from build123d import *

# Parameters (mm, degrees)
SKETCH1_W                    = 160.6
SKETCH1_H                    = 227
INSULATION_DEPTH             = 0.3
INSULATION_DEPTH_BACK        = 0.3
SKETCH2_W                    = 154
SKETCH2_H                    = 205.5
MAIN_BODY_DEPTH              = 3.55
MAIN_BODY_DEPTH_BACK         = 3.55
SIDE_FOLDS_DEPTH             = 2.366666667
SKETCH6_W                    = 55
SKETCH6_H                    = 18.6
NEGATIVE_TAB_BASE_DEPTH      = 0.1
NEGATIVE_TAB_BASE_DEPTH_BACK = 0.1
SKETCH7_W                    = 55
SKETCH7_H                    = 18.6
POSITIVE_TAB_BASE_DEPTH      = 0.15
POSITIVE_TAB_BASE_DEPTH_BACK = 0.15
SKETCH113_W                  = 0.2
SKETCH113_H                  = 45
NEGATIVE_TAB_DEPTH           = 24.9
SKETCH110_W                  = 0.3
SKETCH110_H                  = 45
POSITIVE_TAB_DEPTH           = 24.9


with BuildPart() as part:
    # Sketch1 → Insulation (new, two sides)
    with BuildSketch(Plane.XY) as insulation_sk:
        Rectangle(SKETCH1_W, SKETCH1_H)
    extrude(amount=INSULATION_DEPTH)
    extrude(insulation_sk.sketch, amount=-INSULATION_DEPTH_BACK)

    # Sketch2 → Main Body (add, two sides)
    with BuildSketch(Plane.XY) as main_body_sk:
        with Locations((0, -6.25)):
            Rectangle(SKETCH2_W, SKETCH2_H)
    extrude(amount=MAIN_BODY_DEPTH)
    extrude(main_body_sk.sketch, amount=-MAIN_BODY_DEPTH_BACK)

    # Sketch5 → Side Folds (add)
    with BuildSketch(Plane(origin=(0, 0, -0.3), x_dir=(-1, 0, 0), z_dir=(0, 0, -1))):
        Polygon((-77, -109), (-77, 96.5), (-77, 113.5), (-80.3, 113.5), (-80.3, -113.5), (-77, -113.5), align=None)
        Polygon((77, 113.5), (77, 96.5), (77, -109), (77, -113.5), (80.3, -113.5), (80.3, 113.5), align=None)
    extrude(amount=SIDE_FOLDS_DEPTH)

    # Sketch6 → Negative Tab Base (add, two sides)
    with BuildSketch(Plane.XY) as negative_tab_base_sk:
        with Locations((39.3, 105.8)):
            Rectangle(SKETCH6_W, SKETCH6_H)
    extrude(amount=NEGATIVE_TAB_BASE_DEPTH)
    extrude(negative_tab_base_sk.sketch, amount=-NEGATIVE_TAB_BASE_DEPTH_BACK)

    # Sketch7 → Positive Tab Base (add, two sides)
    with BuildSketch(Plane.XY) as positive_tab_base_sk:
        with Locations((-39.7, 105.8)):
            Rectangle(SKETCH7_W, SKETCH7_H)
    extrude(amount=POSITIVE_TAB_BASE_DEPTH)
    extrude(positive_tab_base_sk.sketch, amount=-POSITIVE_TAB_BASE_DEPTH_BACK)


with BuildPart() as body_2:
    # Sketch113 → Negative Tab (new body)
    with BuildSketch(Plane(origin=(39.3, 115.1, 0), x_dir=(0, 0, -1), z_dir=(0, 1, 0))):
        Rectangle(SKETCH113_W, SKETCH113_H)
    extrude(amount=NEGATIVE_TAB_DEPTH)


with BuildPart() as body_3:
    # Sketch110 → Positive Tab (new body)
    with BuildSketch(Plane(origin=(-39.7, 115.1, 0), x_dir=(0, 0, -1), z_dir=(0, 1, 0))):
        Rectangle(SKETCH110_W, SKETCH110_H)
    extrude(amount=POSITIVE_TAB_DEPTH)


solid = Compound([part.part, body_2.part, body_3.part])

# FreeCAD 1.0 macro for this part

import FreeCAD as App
import Part
import Sketcher
from FreeCAD import Vector

doc = App.newDocument("Part")
body = doc.addObject("PartDesign::Body", "Body")

# Sketch on XY plane
sketch1 = doc.addObject("Sketcher::SketchObject", "Sketch")
body.addObject(sketch1)
sketch1.AttachmentSupport = (doc.XY_Plane, [""])
sketch1.MapMode = "FlatFace"
sketch1.addGeometry(Part.LineSegment(Vector(-80, 114, 0), Vector(-80, -114, 0)), False)
sketch1.addGeometry(Part.LineSegment(Vector(-80, -114, 0), Vector(80, -114, 0)), False)
sketch1.addGeometry(Part.LineSegment(Vector(80, -114, 0), Vector(80, 114, 0)), False)
sketch1.addGeometry(Part.LineSegment(Vector(80, 114, 0), Vector(-80, 114, 0)), False)
sketch1.addConstraint(Sketcher.Constraint("Coincident", 0, 2, 1, 1))
sketch1.addConstraint(Sketcher.Constraint("Coincident", 1, 2, 2, 1))
sketch1.addConstraint(Sketcher.Constraint("Coincident", 2, 2, 3, 1))
sketch1.addConstraint(Sketcher.Constraint("Coincident", 3, 2, 0, 1))
sketch1.addConstraint(Sketcher.Constraint("Vertical", 0))
sketch1.addConstraint(Sketcher.Constraint("Horizontal", 1))
sketch1.addConstraint(Sketcher.Constraint("Vertical", 2))
sketch1.addConstraint(Sketcher.Constraint("Horizontal", 3))
sketch1.addConstraint(Sketcher.Constraint("Symmetric", 0, 2, 2, 2, -1, 1))
sketch1.addConstraint(Sketcher.Constraint("DistanceY", 0, 2, 0, 1, 227.0))
sketch1.addConstraint(Sketcher.Constraint("DistanceX", 1, 1, 1, 2, 160.6))
pad1 = doc.addObject("PartDesign::Pad", "Pad")
body.addObject(pad1)
pad1.Profile = sketch1
pad1.Type = "TwoLengths"
pad1.Length = 0.3
pad1.Length2 = 0.3

# Sketch on XY plane
sketch2 = doc.addObject("Sketcher::SketchObject", "Sketch001")
body.addObject(sketch2)
sketch2.AttachmentSupport = (doc.XY_Plane, [""])
sketch2.MapMode = "FlatFace"
sketch2.addGeometry(Part.LineSegment(Vector(-77, 96, 0), Vector(-77, -109, 0)), False)
sketch2.addGeometry(Part.LineSegment(Vector(-77, -109, 0), Vector(77, -109, 0)), False)
sketch2.addGeometry(Part.LineSegment(Vector(77, -109, 0), Vector(77, 96, 0)), False)
sketch2.addGeometry(Part.LineSegment(Vector(77, 96, 0), Vector(-77, 96, 0)), False)
sketch2.addConstraint(Sketcher.Constraint("Coincident", 0, 2, 1, 1))
sketch2.addConstraint(Sketcher.Constraint("Coincident", 1, 2, 2, 1))
sketch2.addConstraint(Sketcher.Constraint("Coincident", 2, 2, 3, 1))
sketch2.addConstraint(Sketcher.Constraint("Coincident", 3, 2, 0, 1))
sketch2.addConstraint(Sketcher.Constraint("Vertical", 0))
sketch2.addConstraint(Sketcher.Constraint("Horizontal", 1))
sketch2.addConstraint(Sketcher.Constraint("Vertical", 2))
sketch2.addConstraint(Sketcher.Constraint("Horizontal", 3))
sketch2.addConstraint(Sketcher.Constraint("DistanceX", 1, 1, 1, 2, 154.0))
sketch2.addConstraint(Sketcher.Constraint("DistanceY", 0, 2, 0, 1, 205.5))
sketch2.addConstraint(Sketcher.Constraint("DistanceX", 0, 2, -1, 1, 77.0))
sketch2.addConstraint(Sketcher.Constraint("DistanceY", 0, 2, -1, 1, 109.0))
pad2 = doc.addObject("PartDesign::Pad", "Pad001")
body.addObject(pad2)
pad2.Profile = sketch2
pad2.Type = "TwoLengths"
pad2.Length = 3.55
pad2.Length2 = 3.55

# Sketch on XY plane
sketch3 = doc.addObject("Sketcher::SketchObject", "Sketch002")
body.addObject(sketch3)
sketch3.AttachmentSupport = (doc.XY_Plane, [""])
sketch3.MapMode = "FlatFace"
sketch3.AttachmentOffset = App.Placement(Vector(0, 0, -0.3), App.Rotation())
sketch3.addGeometry(Part.LineSegment(Vector(77, 113.5, 0), Vector(80.3, 113.5, 0)), False)
sketch3.addGeometry(Part.LineSegment(Vector(80.3, 113.5, 0), Vector(80.3, -113.5, 0)), False)
sketch3.addGeometry(Part.LineSegment(Vector(80.3, -113.5, 0), Vector(77, -113.5, 0)), False)
sketch3.addGeometry(Part.LineSegment(Vector(77, -113.5, 0), Vector(77, 113.5, 0)), False)
sketch3.addGeometry(Part.LineSegment(Vector(-77, 113.5, 0), Vector(-77, -113.5, 0)), False)
sketch3.addGeometry(Part.LineSegment(Vector(-77, -113.5, 0), Vector(-80.3, -113.5, 0)), False)
sketch3.addGeometry(Part.LineSegment(Vector(-80.3, -113.5, 0), Vector(-80.3, 113.5, 0)), False)
sketch3.addGeometry(Part.LineSegment(Vector(-80.3, 113.5, 0), Vector(-77, 113.5, 0)), False)
sketch3.addConstraint(Sketcher.Constraint("Coincident", 0, 2, 1, 1))
sketch3.addConstraint(Sketcher.Constraint("Coincident", 1, 2, 2, 1))
sketch3.addConstraint(Sketcher.Constraint("Coincident", 2, 2, 3, 1))
sketch3.addConstraint(Sketcher.Constraint("Coincident", 3, 2, 0, 1))
sketch3.addConstraint(Sketcher.Constraint("Coincident", 4, 2, 5, 1))
sketch3.addConstraint(Sketcher.Constraint("Coincident", 5, 2, 6, 1))
sketch3.addConstraint(Sketcher.Constraint("Coincident", 6, 2, 7, 1))
sketch3.addConstraint(Sketcher.Constraint("Coincident", 7, 2, 4, 1))
sketch3.addConstraint(Sketcher.Constraint("Horizontal", 0))
sketch3.addConstraint(Sketcher.Constraint("Vertical", 1))
sketch3.addConstraint(Sketcher.Constraint("Horizontal", 2))
sketch3.addConstraint(Sketcher.Constraint("Vertical", 3))
sketch3.addConstraint(Sketcher.Constraint("Vertical", 4))
sketch3.addConstraint(Sketcher.Constraint("Horizontal", 5))
sketch3.addConstraint(Sketcher.Constraint("Vertical", 6))
sketch3.addConstraint(Sketcher.Constraint("Horizontal", 7))
sketch3.addConstraint(Sketcher.Constraint("Symmetric", 3, 2, 4, 2, -1, 1))
sketch3.addConstraint(Sketcher.Constraint("Symmetric", 1, 2, 6, 2, -1, 1))
sketch3.addConstraint(Sketcher.Constraint("Horizontal", 2, 2, 4, 2))
sketch3.addConstraint(Sketcher.Constraint("DistanceY", 1, 2, 1, 1, 227.0))
sketch3.addConstraint(Sketcher.Constraint("DistanceX", 0, 1, 0, 2, 3.3))
sketch3.addConstraint(Sketcher.Constraint("DistanceX", -1, 1, 2, 2, 77.0))
pad3 = doc.addObject("PartDesign::Pad", "Pad002")
body.addObject(pad3)
pad3.Profile = sketch3
pad3.Length = 2.366667
pad3.Reversed = True

# Sketch on XY plane
sketch4 = doc.addObject("Sketcher::SketchObject", "Sketch003")
body.addObject(sketch4)
sketch4.AttachmentSupport = (doc.XY_Plane, [""])
sketch4.MapMode = "FlatFace"
sketch4.addGeometry(Part.LineSegment(Vector(12, 115, 0), Vector(12, 96, 0)), False)
sketch4.addGeometry(Part.LineSegment(Vector(12, 96, 0), Vector(67, 96, 0)), False)
sketch4.addGeometry(Part.LineSegment(Vector(67, 96, 0), Vector(67, 115, 0)), False)
sketch4.addGeometry(Part.LineSegment(Vector(67, 115, 0), Vector(12, 115, 0)), False)
sketch4.addConstraint(Sketcher.Constraint("Coincident", 0, 2, 1, 1))
sketch4.addConstraint(Sketcher.Constraint("Coincident", 1, 2, 2, 1))
sketch4.addConstraint(Sketcher.Constraint("Coincident", 2, 2, 3, 1))
sketch4.addConstraint(Sketcher.Constraint("Coincident", 3, 2, 0, 1))
sketch4.addConstraint(Sketcher.Constraint("Vertical", 0))
sketch4.addConstraint(Sketcher.Constraint("Horizontal", 1))
sketch4.addConstraint(Sketcher.Constraint("Vertical", 2))
sketch4.addConstraint(Sketcher.Constraint("Horizontal", 3))
sketch4.addConstraint(Sketcher.Constraint("DistanceX", 1, 1, 1, 2, 55.0))
sketch4.addConstraint(Sketcher.Constraint("DistanceY", 0, 2, 0, 1, 18.6))
sketch4.addConstraint(Sketcher.Constraint("DistanceX", -1, 1, 0, 2, 11.8))
sketch4.addConstraint(Sketcher.Constraint("DistanceY", -1, 1, 0, 2, 96.5))
pad4 = doc.addObject("PartDesign::Pad", "Pad003")
body.addObject(pad4)
pad4.Profile = sketch4
pad4.Type = "TwoLengths"
pad4.Length = 0.1
pad4.Length2 = 0.1

# Sketch on XY plane
sketch5 = doc.addObject("Sketcher::SketchObject", "Sketch004")
body.addObject(sketch5)
sketch5.AttachmentSupport = (doc.XY_Plane, [""])
sketch5.MapMode = "FlatFace"
sketch5.addGeometry(Part.LineSegment(Vector(-67, 115, 0), Vector(-67, 96, 0)), False)
sketch5.addGeometry(Part.LineSegment(Vector(-67, 96, 0), Vector(-12, 96, 0)), False)
sketch5.addGeometry(Part.LineSegment(Vector(-12, 96, 0), Vector(-12, 115, 0)), False)
sketch5.addGeometry(Part.LineSegment(Vector(-12, 115, 0), Vector(-67, 115, 0)), False)
sketch5.addConstraint(Sketcher.Constraint("Coincident", 0, 2, 1, 1))
sketch5.addConstraint(Sketcher.Constraint("Coincident", 1, 2, 2, 1))
sketch5.addConstraint(Sketcher.Constraint("Coincident", 2, 2, 3, 1))
sketch5.addConstraint(Sketcher.Constraint("Coincident", 3, 2, 0, 1))
sketch5.addConstraint(Sketcher.Constraint("Vertical", 0))
sketch5.addConstraint(Sketcher.Constraint("Horizontal", 1))
sketch5.addConstraint(Sketcher.Constraint("Vertical", 2))
sketch5.addConstraint(Sketcher.Constraint("Horizontal", 3))
sketch5.addConstraint(Sketcher.Constraint("DistanceX", 1, 1, 1, 2, 55.0))
sketch5.addConstraint(Sketcher.Constraint("DistanceY", 0, 2, 0, 1, 18.6))
sketch5.addConstraint(Sketcher.Constraint("DistanceX", 0, 2, -1, 1, 67.2))
sketch5.addConstraint(Sketcher.Constraint("DistanceY", -1, 1, 0, 2, 96.5))
pad5 = doc.addObject("PartDesign::Pad", "Pad004")
body.addObject(pad5)
pad5.Profile = sketch5
pad5.Type = "TwoLengths"
pad5.Length = 0.15
pad5.Length2 = 0.15
body2 = doc.addObject("PartDesign::Body", "Body001")

# Sketch on XZ plane
sketch6 = doc.addObject("Sketcher::SketchObject", "Sketch005")
body2.addObject(sketch6)
sketch6.AttachmentSupport = (doc.getObject("XZ_Plane001"), [""])
sketch6.MapMode = "FlatFace"
sketch6.AttachmentOffset = App.Placement(Vector(0, 0, -115.1), App.Rotation())
sketch6.addGeometry(Part.LineSegment(Vector(16.8, 0.1, 0), Vector(61.8, 0.1, 0)), False)
sketch6.addGeometry(Part.LineSegment(Vector(61.8, 0.1, 0), Vector(61.8, -0.1, 0)), False)
sketch6.addGeometry(Part.LineSegment(Vector(61.8, -0.1, 0), Vector(16.8, -0.1, 0)), False)
sketch6.addGeometry(Part.LineSegment(Vector(16.8, -0.1, 0), Vector(16.8, 0.1, 0)), False)
sketch6.addConstraint(Sketcher.Constraint("Coincident", 0, 2, 1, 1))
sketch6.addConstraint(Sketcher.Constraint("Coincident", 1, 2, 2, 1))
sketch6.addConstraint(Sketcher.Constraint("Coincident", 2, 2, 3, 1))
sketch6.addConstraint(Sketcher.Constraint("Coincident", 3, 2, 0, 1))
sketch6.addConstraint(Sketcher.Constraint("Horizontal", 0))
sketch6.addConstraint(Sketcher.Constraint("Vertical", 1))
sketch6.addConstraint(Sketcher.Constraint("Horizontal", 2))
sketch6.addConstraint(Sketcher.Constraint("Vertical", 3))
sketch6.addConstraint(Sketcher.Constraint("DistanceX", 0, 1, 0, 2, 45.0))
sketch6.addConstraint(Sketcher.Constraint("DistanceY", 1, 2, 1, 1, 0.2))
sketch6.addConstraint(Sketcher.Constraint("DistanceX", -1, 1, 0, 2, 61.8))
sketch6.addConstraint(Sketcher.Constraint("DistanceY", -1, 1, 0, 2, 0.1))
pad6 = doc.addObject("PartDesign::Pad", "Pad005")
body2.addObject(pad6)
pad6.Profile = sketch6
pad6.Length = 24.9
pad6.Reversed = True
body3 = doc.addObject("PartDesign::Body", "Body002")

# Sketch on XZ plane
sketch7 = doc.addObject("Sketcher::SketchObject", "Sketch006")
body3.addObject(sketch7)
sketch7.AttachmentSupport = (doc.getObject("XZ_Plane002"), [""])
sketch7.MapMode = "FlatFace"
sketch7.AttachmentOffset = App.Placement(Vector(0, 0, -115.1), App.Rotation())
sketch7.addGeometry(Part.LineSegment(Vector(-62.2, 0.15, 0), Vector(-17.2, 0.15, 0)), False)
sketch7.addGeometry(Part.LineSegment(Vector(-17.2, 0.15, 0), Vector(-17.2, -0.15, 0)), False)
sketch7.addGeometry(Part.LineSegment(Vector(-17.2, -0.15, 0), Vector(-62.2, -0.15, 0)), False)
sketch7.addGeometry(Part.LineSegment(Vector(-62.2, -0.15, 0), Vector(-62.2, 0.15, 0)), False)
sketch7.addConstraint(Sketcher.Constraint("Coincident", 0, 2, 1, 1))
sketch7.addConstraint(Sketcher.Constraint("Coincident", 1, 2, 2, 1))
sketch7.addConstraint(Sketcher.Constraint("Coincident", 2, 2, 3, 1))
sketch7.addConstraint(Sketcher.Constraint("Coincident", 3, 2, 0, 1))
sketch7.addConstraint(Sketcher.Constraint("Horizontal", 0))
sketch7.addConstraint(Sketcher.Constraint("Vertical", 1))
sketch7.addConstraint(Sketcher.Constraint("Horizontal", 2))
sketch7.addConstraint(Sketcher.Constraint("Vertical", 3))
sketch7.addConstraint(Sketcher.Constraint("DistanceX", 0, 1, 0, 2, 45.0))
sketch7.addConstraint(Sketcher.Constraint("DistanceY", 1, 2, 1, 1, 0.3))
sketch7.addConstraint(Sketcher.Constraint("DistanceX", 0, 2, -1, 1, 17.2))
sketch7.addConstraint(Sketcher.Constraint("DistanceY", -1, 1, 0, 2, 0.15))
pad7 = doc.addObject("PartDesign::Pad", "Pad006")
body3.addObject(pad7)
pad7.Profile = sketch7
pad7.Length = 24.9
pad7.Reversed = True

doc.recompute()
